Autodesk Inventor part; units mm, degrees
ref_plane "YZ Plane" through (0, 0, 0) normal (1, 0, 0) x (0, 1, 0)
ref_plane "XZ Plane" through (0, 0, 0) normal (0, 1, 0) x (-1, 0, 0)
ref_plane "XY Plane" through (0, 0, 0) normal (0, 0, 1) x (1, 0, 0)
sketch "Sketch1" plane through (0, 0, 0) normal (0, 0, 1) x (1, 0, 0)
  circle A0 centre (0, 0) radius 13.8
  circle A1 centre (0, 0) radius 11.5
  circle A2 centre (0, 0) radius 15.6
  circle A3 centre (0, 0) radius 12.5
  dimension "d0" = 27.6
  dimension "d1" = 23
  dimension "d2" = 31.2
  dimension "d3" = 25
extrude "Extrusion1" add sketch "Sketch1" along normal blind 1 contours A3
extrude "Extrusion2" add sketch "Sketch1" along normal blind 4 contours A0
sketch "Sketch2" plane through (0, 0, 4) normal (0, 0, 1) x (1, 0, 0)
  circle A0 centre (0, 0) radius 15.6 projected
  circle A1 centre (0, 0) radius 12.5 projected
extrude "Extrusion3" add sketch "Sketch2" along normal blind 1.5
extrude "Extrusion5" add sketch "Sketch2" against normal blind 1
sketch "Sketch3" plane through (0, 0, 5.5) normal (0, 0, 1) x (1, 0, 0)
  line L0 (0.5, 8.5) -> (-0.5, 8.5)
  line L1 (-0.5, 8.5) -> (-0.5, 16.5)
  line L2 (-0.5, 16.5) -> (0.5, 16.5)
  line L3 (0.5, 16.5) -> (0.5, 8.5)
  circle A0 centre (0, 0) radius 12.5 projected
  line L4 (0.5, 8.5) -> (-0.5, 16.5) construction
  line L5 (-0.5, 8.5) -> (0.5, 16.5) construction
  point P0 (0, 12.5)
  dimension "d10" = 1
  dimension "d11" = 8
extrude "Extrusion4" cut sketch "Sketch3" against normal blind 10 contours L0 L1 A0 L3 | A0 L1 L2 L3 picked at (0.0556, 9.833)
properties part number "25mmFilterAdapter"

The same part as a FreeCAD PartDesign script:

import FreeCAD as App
import Part
import Sketcher
from FreeCAD import Vector

doc = App.newDocument("Part")
params = doc.addObject("Spreadsheet::Sheet", "Params")
for row, (alias, value) in enumerate([
    ("sketch1_diameter", "25 mm"),
    ("sketch1_diameter2", "23 mm"),
    ("pad1_length", "1 mm"),
    ("sketch2_diameter", "25 mm"),
    ("sketch2_diameter2", "27.6 mm"),
    ("pad2_length", "4 mm"),
    ("sketch3_diameter", "25 mm"),
    ("sketch3_diameter2", "31.2 mm"),
    ("pad3_length", "1.5 mm"),
    ("sketch4_diameter", "25 mm"),
    ("sketch4_diameter2", "31.2 mm"),
    ("pad4_length", "1 mm"),
    ("sketch5_width", "1 mm"),
    ("sketch5_height", "8 mm"),
    ("pocket1_length", "10 mm"),
], start=1):
    params.set(f"A{row}", alias)
    params.set(f"B{row}", "=" + value)
    params.setAlias(f"B{row}", alias)

body = doc.addObject("PartDesign::Body", "Body")

# Sketch on XY plane
sketch1 = doc.addObject("Sketcher::SketchObject", "Sketch")
body.addObject(sketch1)
sketch1.AttachmentSupport = (doc.XY_Plane, [""])
sketch1.MapMode = "FlatFace"
sketch1.addGeometry(Part.Circle(Vector(0, 0, 0), Vector(0, 0, 1), 12.5), False)
sketch1.addGeometry(Part.Circle(Vector(0, 0, 0), Vector(0, 0, 1), 11.5), False)
sketch1.addConstraint(Sketcher.Constraint("Coincident", 0, 3, -1, 1))
sketch1.addConstraint(Sketcher.Constraint("Coincident", 1, 3, -1, 1))
sketch1.addConstraint(Sketcher.Constraint("Diameter", 0, 25.0))
sketch1.addConstraint(Sketcher.Constraint("Diameter", 1, 23.0))
sketch1.setExpression("Constraints[2]", "Params.sketch1_diameter")
sketch1.setExpression("Constraints[3]", "Params.sketch1_diameter2")
pad1 = doc.addObject("PartDesign::Pad", "Pad")
body.addObject(pad1)
pad1.Profile = sketch1
pad1.setExpression("Length", "Params.pad1_length")

# Sketch on XY plane
sketch2 = doc.addObject("Sketcher::SketchObject", "Sketch001")
body.addObject(sketch2)
sketch2.AttachmentSupport = (doc.XY_Plane, [""])
sketch2.MapMode = "FlatFace"
sketch2.addGeometry(Part.Circle(Vector(0, 0, 0), Vector(0, 0, 1), 13.8), False)
sketch2.addGeometry(Part.Circle(Vector(0, 0, 0), Vector(0, 0, 1), 12.5), False)
sketch2.addConstraint(Sketcher.Constraint("Coincident", 0, 3, -1, 1))
sketch2.addConstraint(Sketcher.Constraint("Coincident", 1, 3, -1, 1))
sketch2.addConstraint(Sketcher.Constraint("Diameter", 1, 25.0))
sketch2.addConstraint(Sketcher.Constraint("Diameter", 0, 27.6))
sketch2.setExpression("Constraints[2]", "Params.sketch2_diameter")
sketch2.setExpression("Constraints[3]", "Params.sketch2_diameter2")
pad2 = doc.addObject("PartDesign::Pad", "Pad001")
body.addObject(pad2)
pad2.Profile = sketch2
pad2.setExpression("Length", "Params.pad2_length")

# Sketch on XY plane
sketch3 = doc.addObject("Sketcher::SketchObject", "Sketch002")
body.addObject(sketch3)
sketch3.AttachmentSupport = (doc.XY_Plane, [""])
sketch3.MapMode = "FlatFace"
sketch3.AttachmentOffset = App.Placement(Vector(0, 0, 4), App.Rotation())
sketch3.addGeometry(Part.Circle(Vector(0, 0, 0), Vector(0, 0, 1), 15.6), False)
sketch3.addGeometry(Part.Circle(Vector(0, 0, 0), Vector(0, 0, 1), 12.5), False)
sketch3.addConstraint(Sketcher.Constraint("Coincident", 0, 3, -1, 1))
sketch3.addConstraint(Sketcher.Constraint("Coincident", 1, 3, -1, 1))
sketch3.addConstraint(Sketcher.Constraint("Diameter", 1, 25.0))
sketch3.addConstraint(Sketcher.Constraint("Diameter", 0, 31.2))
sketch3.setExpression("Constraints[2]", "Params.sketch3_diameter")
sketch3.setExpression("Constraints[3]", "Params.sketch3_diameter2")
pad3 = doc.addObject("PartDesign::Pad", "Pad002")
body.addObject(pad3)
pad3.Profile = sketch3
pad3.setExpression("Length", "Params.pad3_length")

# Sketch on XY plane
sketch4 = doc.addObject("Sketcher::SketchObject", "Sketch003")
body.addObject(sketch4)
sketch4.AttachmentSupport = (doc.XY_Plane, [""])
sketch4.MapMode = "FlatFace"
sketch4.AttachmentOffset = App.Placement(Vector(0, 0, 4), App.Rotation())
sketch4.addGeometry(Part.Circle(Vector(0, 0, 0), Vector(0, 0, 1), 15.6), False)
sketch4.addGeometry(Part.Circle(Vector(0, 0, 0), Vector(0, 0, 1), 12.5), False)
sketch4.addConstraint(Sketcher.Constraint("Coincident", 0, 3, -1, 1))
sketch4.addConstraint(Sketcher.Constraint("Coincident", 1, 3, -1, 1))
sketch4.addConstraint(Sketcher.Constraint("Diameter", 1, 25.0))
sketch4.addConstraint(Sketcher.Constraint("Diameter", 0, 31.2))
sketch4.setExpression("Constraints[2]", "Params.sketch4_diameter")
sketch4.setExpression("Constraints[3]", "Params.sketch4_diameter2")
pad4 = doc.addObject("PartDesign::Pad", "Pad003")
body.addObject(pad4)
pad4.Profile = sketch4
pad4.setExpression("Length", "Params.pad4_length")
pad4.Reversed = True

# Sketch on XY plane
sketch5 = doc.addObject("Sketcher::SketchObject", "Sketch004")
body.addObject(sketch5)
sketch5.AttachmentSupport = (doc.XY_Plane, [""])
sketch5.MapMode = "FlatFace"
sketch5.AttachmentOffset = App.Placement(Vector(0, 0, 5.5), App.Rotation())
sketch5.addGeometry(Part.LineSegment(Vector(-0.5, 8.5, 0), Vector(0.5, 8.5, 0)), False)
sketch5.addGeometry(Part.LineSegment(Vector(0.5, 8.5, 0), Vector(0.5, 16.5, 0)), False)
sketch5.addGeometry(Part.LineSegment(Vector(0.5, 16.5, 0), Vector(-0.5, 16.5, 0)), False)
sketch5.addGeometry(Part.LineSegment(Vector(-0.5, 16.5, 0), Vector(-0.5, 8.5, 0)), False)
sketch5.addConstraint(Sketcher.Constraint("Coincident", 0, 2, 1, 1))
sketch5.addConstraint(Sketcher.Constraint("Coincident", 1, 2, 2, 1))
sketch5.addConstraint(Sketcher.Constraint("Coincident", 2, 2, 3, 1))
sketch5.addConstraint(Sketcher.Constraint("Coincident", 3, 2, 0, 1))
sketch5.addConstraint(Sketcher.Constraint("Horizontal", 0))
sketch5.addConstraint(Sketcher.Constraint("Vertical", 1))
sketch5.addConstraint(Sketcher.Constraint("Horizontal", 2))
sketch5.addConstraint(Sketcher.Constraint("Vertical", 3))
sketch5.addConstraint(Sketcher.Constraint("DistanceX", 0, 1, 0, 2, 1.0))
sketch5.addConstraint(Sketcher.Constraint("DistanceY", 1, 1, 1, 2, 8.0))
sketch5.addConstraint(Sketcher.Constraint("DistanceX", -1, 1, 0, 2, 0.5))
sketch5.addConstraint(Sketcher.Constraint("DistanceY", -1, 1, 0, 2, 8.5))
sketch5.setExpression("Constraints[8]", "Params.sketch5_width")
sketch5.setExpression("Constraints[9]", "Params.sketch5_height")
pocket1 = doc.addObject("PartDesign::Pocket", "Pocket")
body.addObject(pocket1)
pocket1.Profile = sketch5
pocket1.setExpression("Length", "Params.pocket1_length")

doc.recompute()
